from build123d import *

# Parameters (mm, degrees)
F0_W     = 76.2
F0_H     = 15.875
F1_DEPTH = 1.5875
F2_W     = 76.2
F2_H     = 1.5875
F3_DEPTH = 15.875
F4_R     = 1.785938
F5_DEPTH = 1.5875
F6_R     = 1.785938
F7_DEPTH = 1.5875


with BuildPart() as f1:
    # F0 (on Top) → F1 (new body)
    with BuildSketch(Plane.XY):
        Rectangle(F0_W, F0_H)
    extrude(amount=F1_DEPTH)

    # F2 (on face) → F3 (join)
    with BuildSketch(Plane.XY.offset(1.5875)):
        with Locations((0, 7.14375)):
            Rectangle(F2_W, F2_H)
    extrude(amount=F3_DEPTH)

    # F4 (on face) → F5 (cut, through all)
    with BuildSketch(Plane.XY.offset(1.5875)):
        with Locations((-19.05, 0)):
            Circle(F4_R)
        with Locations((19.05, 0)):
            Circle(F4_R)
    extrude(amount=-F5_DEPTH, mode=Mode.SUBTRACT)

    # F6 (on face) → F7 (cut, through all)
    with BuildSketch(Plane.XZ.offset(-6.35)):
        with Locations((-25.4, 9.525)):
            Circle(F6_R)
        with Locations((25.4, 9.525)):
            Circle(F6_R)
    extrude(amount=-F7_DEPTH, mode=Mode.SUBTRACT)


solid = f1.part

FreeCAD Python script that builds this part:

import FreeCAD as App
import Part
import Sketcher
Q = App.Units.Quantity

doc = App.newDocument("Part")
params = doc.addObject("Spreadsheet::Sheet", "Params")
for row, (alias, value) in enumerate([
    ("sketch1_width", "3 in"),
    ("sketch1_height", "0.625 in"),
    ("pad1_length", "0.0625 in"),
    ("sketch2_width", "3 in"),
    ("sketch2_height", "0.0625 in"),
    ("pad2_length", "0.625 in"),
    ("sketch3_diameter", "0.140625 in"),
    ("sketch4_diameter", "0.140625 in"),
], start=1):
    params.set(f"A{row}", alias)
    params.set(f"B{row}", "=" + value)
    params.setAlias(f"B{row}", alias)

body = doc.addObject("PartDesign::Body", "Body")

sketch1 = doc.addObject("Sketcher::SketchObject", "Sketch")
body.addObject(sketch1)
sketch1.AttachmentSupport = (doc.XY_Plane, [""])
sketch1.MapMode = "FlatFace"
sketch1.addGeometry([
    Part.LineSegment(App.Vector(-38, 8, 0), App.Vector(-38, -8, 0)),
    Part.LineSegment(App.Vector(-38, -8, 0), App.Vector(38, -8, 0)),
    Part.LineSegment(App.Vector(38, -8, 0), App.Vector(38, 8, 0)),
    Part.LineSegment(App.Vector(38, 8, 0), App.Vector(-38, 8, 0)),
], False)
sketch1.addConstraint([
    Sketcher.Constraint("Coincident", 0, 2, 1, 1),
    Sketcher.Constraint("Coincident", 1, 2, 2, 1),
    Sketcher.Constraint("Coincident", 2, 2, 3, 1),
    Sketcher.Constraint("Coincident", 3, 2, 0, 1),
    Sketcher.Constraint("Vertical", 0),
    Sketcher.Constraint("Horizontal", 1),
    Sketcher.Constraint("Vertical", 2),
    Sketcher.Constraint("Horizontal", 3),
    Sketcher.Constraint("Symmetric", 0, 2, 2, 2, -1, 1),
    Sketcher.Constraint("DistanceX", 1, 1, 1, 2, Q("3 in")),
    Sketcher.Constraint("DistanceY", 0, 2, 0, 1, Q("0.625 in")),
])
sketch1.setExpression("Constraints[9]", "Params.sketch1_width")
sketch1.setExpression("Constraints[10]", "Params.sketch1_height")
pad1 = doc.addObject("PartDesign::Pad", "Pad")
body.addObject(pad1)
pad1.Profile = sketch1
pad1.setExpression("Length", "Params.pad1_length")

sketch2 = doc.addObject("Sketcher::SketchObject", "Sketch001")
body.addObject(sketch2)
sketch2.AttachmentSupport = (doc.XY_Plane, [""])
sketch2.MapMode = "FlatFace"
sketch2.AttachmentOffset = App.Placement(App.Vector(0, 0, 0.0625 * 25.4), App.Rotation())
sketch2.addGeometry([
    Part.LineSegment(App.Vector(-38.1, 7.9, 0), App.Vector(-38.1, 6.3, 0)),
    Part.LineSegment(App.Vector(-38.1, 6.3, 0), App.Vector(38.1, 6.3, 0)),
    Part.LineSegment(App.Vector(38.1, 6.3, 0), App.Vector(38.1, 7.9, 0)),
    Part.LineSegment(App.Vector(38.1, 7.9, 0), App.Vector(-38.1, 7.9, 0)),
], False)
sketch2.addConstraint([
    Sketcher.Constraint("Coincident", 0, 2, 1, 1),
    Sketcher.Constraint("Coincident", 1, 2, 2, 1),
    Sketcher.Constraint("Coincident", 2, 2, 3, 1),
    Sketcher.Constraint("Coincident", 3, 2, 0, 1),
    Sketcher.Constraint("Vertical", 0),
    Sketcher.Constraint("Horizontal", 1),
    Sketcher.Constraint("Vertical", 2),
    Sketcher.Constraint("Horizontal", 3),
    Sketcher.Constraint("DistanceX", 1, 1, 1, 2, Q("3 in")),
    Sketcher.Constraint("DistanceX", 0, 2, -1, 1, Q("1.5 in")),
    Sketcher.Constraint("DistanceY", 0, 2, 0, 1, Q("0.0625 in")),
    Sketcher.Constraint("DistanceY", -1, 1, 0, 2, Q("0.25 in")),
])
sketch2.setExpression("Constraints[8]", "Params.sketch2_width")
sketch2.setExpression("Constraints[10]", "Params.sketch2_height")
pad2 = doc.addObject("PartDesign::Pad", "Pad001")
body.addObject(pad2)
pad2.Profile = sketch2
pad2.setExpression("Length", "Params.pad2_length")

sketch3 = doc.addObject("Sketcher::SketchObject", "Sketch002")
body.addObject(sketch3)
sketch3.AttachmentSupport = (doc.XY_Plane, [""])
sketch3.MapMode = "FlatFace"
sketch3.AttachmentOffset = App.Placement(App.Vector(0, 0, 0.0625 * 25.4), App.Rotation())
sketch3.addGeometry([
    Part.Circle(App.Vector(-19.1, 0, 0), App.Vector(0, 0, 1), 1.8),
    Part.Circle(App.Vector(19.1, 0, 0), App.Vector(0, 0, 1), 1.8),
], False)
sketch3.addConstraint([
    Sketcher.Constraint("Equal", 0, 1),
    Sketcher.Constraint("Symmetric", 0, 3, 1, 3, -1, 1),
    Sketcher.Constraint("PointOnObject", 0, 3, -1),
    Sketcher.Constraint("Diameter", 0, Q("0.140625 in")),
    Sketcher.Constraint("DistanceX", 0, 3, 1, 3, Q("1.5 in")),
])
sketch3.setExpression("Constraints[3]", "Params.sketch3_diameter")
pocket1 = doc.addObject("PartDesign::Pocket", "Pocket")
body.addObject(pocket1)
pocket1.Profile = sketch3
pocket1.Type = "ThroughAll"

sketch4 = doc.addObject("Sketcher::SketchObject", "Sketch003")
body.addObject(sketch4)
sketch4.AttachmentSupport = (doc.XZ_Plane, [""])
sketch4.MapMode = "FlatFace"
sketch4.AttachmentOffset = App.Placement(App.Vector(0, 0, -0.25 * 25.4), App.Rotation())
sketch4.addGeometry([
    Part.Circle(App.Vector(-25.4, 9.5, 0), App.Vector(0, 0, 1), 1.8),
    Part.Circle(App.Vector(25.4, 9.5, 0), App.Vector(0, 0, 1), 1.8),
], False)
sketch4.addConstraint([
    Sketcher.Constraint("Equal", 0, 1),
    Sketcher.Constraint("Symmetric", 0, 3, 1, 3, -2),
    Sketcher.Constraint("Diameter", 0, Q("0.140625 in")),
    Sketcher.Constraint("DistanceX", 0, 3, -1, 1, Q("1 in")),
    Sketcher.Constraint("DistanceY", -1, 1, 0, 3, Q("0.375 in")),
])
sketch4.setExpression("Constraints[2]", "Params.sketch4_diameter")
pocket2 = doc.addObject("PartDesign::Pocket", "Pocket001")
body.addObject(pocket2)
pocket2.Profile = sketch4
pocket2.Type = "ThroughAll"

doc.recompute()
